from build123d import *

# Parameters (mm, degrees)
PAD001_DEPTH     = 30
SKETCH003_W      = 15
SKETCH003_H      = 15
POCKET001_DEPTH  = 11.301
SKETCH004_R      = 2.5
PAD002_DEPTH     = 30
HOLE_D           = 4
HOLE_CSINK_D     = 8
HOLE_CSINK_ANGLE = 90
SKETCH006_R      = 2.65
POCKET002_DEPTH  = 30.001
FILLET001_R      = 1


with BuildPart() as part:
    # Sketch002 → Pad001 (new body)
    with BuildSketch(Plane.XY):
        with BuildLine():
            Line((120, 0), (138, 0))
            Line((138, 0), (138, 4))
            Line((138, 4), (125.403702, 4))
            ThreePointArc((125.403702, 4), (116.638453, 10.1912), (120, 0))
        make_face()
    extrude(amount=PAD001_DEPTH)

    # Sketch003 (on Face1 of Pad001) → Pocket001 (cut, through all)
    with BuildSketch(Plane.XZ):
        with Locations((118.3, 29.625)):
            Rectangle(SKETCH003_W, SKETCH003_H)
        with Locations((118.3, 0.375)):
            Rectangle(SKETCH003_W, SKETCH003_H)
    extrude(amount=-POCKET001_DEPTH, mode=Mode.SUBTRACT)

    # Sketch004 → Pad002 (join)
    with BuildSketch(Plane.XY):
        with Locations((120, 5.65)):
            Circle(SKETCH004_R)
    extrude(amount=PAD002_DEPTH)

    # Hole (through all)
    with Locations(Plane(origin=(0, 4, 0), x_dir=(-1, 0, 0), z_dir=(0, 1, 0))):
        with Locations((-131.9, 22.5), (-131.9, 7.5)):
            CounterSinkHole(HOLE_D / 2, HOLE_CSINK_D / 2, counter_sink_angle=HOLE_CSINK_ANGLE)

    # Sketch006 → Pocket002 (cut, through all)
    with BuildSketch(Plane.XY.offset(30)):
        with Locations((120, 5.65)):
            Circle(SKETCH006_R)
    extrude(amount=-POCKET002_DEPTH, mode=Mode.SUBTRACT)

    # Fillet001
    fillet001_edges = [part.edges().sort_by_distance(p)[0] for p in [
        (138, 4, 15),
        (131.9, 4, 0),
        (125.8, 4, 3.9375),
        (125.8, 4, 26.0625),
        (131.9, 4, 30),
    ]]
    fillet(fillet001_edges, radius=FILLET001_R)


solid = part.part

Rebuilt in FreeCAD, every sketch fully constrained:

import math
import FreeCAD as App
import Part
import Sketcher
Q = App.Units.Quantity


def edges_at(feature, points):
    """Names of the edges that pass closest to the given points."""
    edges = feature.Shape.Edges
    near = lambda p: min(range(len(edges)), key=lambda i: edges[i].distToShape(Part.Vertex(*p))[0])
    return sorted({f"Edge{near(p) + 1}" for p in points})

doc = App.newDocument("Part")
body = doc.addObject("PartDesign::Body", "Body")

# Sketch on XY plane
sketch1 = doc.addObject("Sketcher::SketchObject", "Sketch")
body.addObject(sketch1)
sketch1.AttachmentSupport = (doc.XY_Plane, [""])
sketch1.MapMode = "FlatFace"
sketch1.addGeometry(Part.LineSegment(App.Vector(120, 0, 0), App.Vector(138, 0, 0)), False)
sketch1.addGeometry(Part.LineSegment(App.Vector(138, 0, 0), App.Vector(138, 4, 0)), False)
sketch1.addGeometry(Part.LineSegment(App.Vector(138, 4, 0), App.Vector(125.4, 4, 0)), False)
sketch1.addGeometry(Part.ArcOfCircle(Part.Circle(App.Vector(120, 5.6, 0), App.Vector(0, 0, 1), 5.6), math.radians(-17), math.radians(270)), False)
sketch1.addConstraint(Sketcher.Constraint("Coincident", 0, 2, 1, 1))
sketch1.addConstraint(Sketcher.Constraint("Coincident", 1, 2, 2, 1))
sketch1.addConstraint(Sketcher.Constraint("Coincident", 2, 2, 3, 1))
sketch1.addConstraint(Sketcher.Constraint("Tangent", 3, 2, 0, 1))
sketch1.addConstraint(Sketcher.Constraint("Horizontal", 0))
sketch1.addConstraint(Sketcher.Constraint("Vertical", 1))
sketch1.addConstraint(Sketcher.Constraint("Horizontal", 2))
sketch1.addConstraint(Sketcher.Constraint("PointOnObject", 0, 2, -1))
sketch1.addConstraint(Sketcher.Constraint("DistanceX", 0, 1, 0, 2, Q("18 mm")))
sketch1.addConstraint(Sketcher.Constraint("DistanceY", 1, 1, 1, 2, Q("4 mm")))
sketch1.addConstraint(Sketcher.Constraint("Radius", 3, Q("5.65 mm")))
sketch1.addConstraint(Sketcher.Constraint("DistanceX", -1, 1, 3, 3, Q("120 mm")))
pad1 = doc.addObject("PartDesign::Pad", "Pad")
body.addObject(pad1)
pad1.Profile = sketch1
pad1.Length = 30

# Sketch on XZ plane
sketch2 = doc.addObject("Sketcher::SketchObject", "Sketch001")
body.addObject(sketch2)
sketch2.AttachmentSupport = (doc.XZ_Plane, [""])
sketch2.MapMode = "FlatFace"
sketch2.addGeometry(Part.LineSegment(App.Vector(111, 37, 0), App.Vector(111, 22, 0)), False)
sketch2.addGeometry(Part.LineSegment(App.Vector(111, 22, 0), App.Vector(126, 22, 0)), False)
sketch2.addGeometry(Part.LineSegment(App.Vector(126, 22, 0), App.Vector(126, 37, 0)), False)
sketch2.addGeometry(Part.LineSegment(App.Vector(126, 37, 0), App.Vector(111, 37, 0)), False)
sketch2.addGeometry(Part.LineSegment(App.Vector(111, 8, 0), App.Vector(111, -7, 0)), False)
sketch2.addGeometry(Part.LineSegment(App.Vector(111, -7, 0), App.Vector(126, -7, 0)), False)
sketch2.addGeometry(Part.LineSegment(App.Vector(126, -7, 0), App.Vector(126, 8, 0)), False)
sketch2.addGeometry(Part.LineSegment(App.Vector(126, 8, 0), App.Vector(111, 8, 0)), False)
sketch2.addConstraint(Sketcher.Constraint("Coincident", 0, 2, 1, 1))
sketch2.addConstraint(Sketcher.Constraint("Coincident", 1, 2, 2, 1))
sketch2.addConstraint(Sketcher.Constraint("Coincident", 2, 2, 3, 1))
sketch2.addConstraint(Sketcher.Constraint("Coincident", 3, 2, 0, 1))
sketch2.addConstraint(Sketcher.Constraint("Coincident", 4, 2, 5, 1))
sketch2.addConstraint(Sketcher.Constraint("Coincident", 5, 2, 6, 1))
sketch2.addConstraint(Sketcher.Constraint("Coincident", 6, 2, 7, 1))
sketch2.addConstraint(Sketcher.Constraint("Coincident", 7, 2, 4, 1))
sketch2.addConstraint(Sketcher.Constraint("Vertical", 0))
sketch2.addConstraint(Sketcher.Constraint("Horizontal", 1))
sketch2.addConstraint(Sketcher.Constraint("Vertical", 2))
sketch2.addConstraint(Sketcher.Constraint("Horizontal", 3))
sketch2.addConstraint(Sketcher.Constraint("Vertical", 4))
sketch2.addConstraint(Sketcher.Constraint("Horizontal", 5))
sketch2.addConstraint(Sketcher.Constraint("Vertical", 6))
sketch2.addConstraint(Sketcher.Constraint("Horizontal", 7))
sketch2.addConstraint(Sketcher.Constraint("Vertical", 3, 2, 4, 2))
sketch2.addConstraint(Sketcher.Constraint("Vertical", 2, 2, 5, 2))
sketch2.addConstraint(Sketcher.Constraint("Equal", 7, 0))
sketch2.addConstraint(Sketcher.Constraint("Equal", 2, 4))
sketch2.addConstraint(Sketcher.Constraint("DistanceX", 1, 1, 1, 2, Q("15 mm")))
sketch2.addConstraint(Sketcher.Constraint("DistanceX", -1, 1, 0, 2, Q("110.8 mm")))
sketch2.addConstraint(Sketcher.Constraint("DistanceY", 4, 2, 0, 2, Q("29.25 mm")))
sketch2.addConstraint(Sketcher.Constraint("DistanceY", -1, 1, 0, 2, Q("22.125 mm")))
pocket1 = doc.addObject("PartDesign::Pocket", "Pocket")
body.addObject(pocket1)
pocket1.Profile = sketch2
pocket1.Type = "ThroughAll"

# Sketch on XY plane
sketch3 = doc.addObject("Sketcher::SketchObject", "Sketch002")
body.addObject(sketch3)
sketch3.AttachmentSupport = (doc.XY_Plane, [""])
sketch3.MapMode = "FlatFace"
sketch3.addGeometry(Part.Circle(App.Vector(120, 5.7, 0), App.Vector(0, 0, 1), 2.5), False)
sketch3.addConstraint(Sketcher.Constraint("Diameter", 0, Q("5 mm")))
sketch3.addConstraint(Sketcher.Constraint("DistanceX", -1, 1, 0, 3, Q("120 mm")))
sketch3.addConstraint(Sketcher.Constraint("DistanceY", -1, 1, 0, 3, Q("5.65 mm")))
pad2 = doc.addObject("PartDesign::Pad", "Pad001")
body.addObject(pad2)
pad2.Profile = sketch3
pad2.Length = 30

# Sketch on XZ plane
sketch4 = doc.addObject("Sketcher::SketchObject", "Sketch003")
body.addObject(sketch4)
sketch4.AttachmentSupport = (doc.XZ_Plane, [""])
sketch4.MapMode = "FlatFace"
sketch4.AttachmentOffset = App.Placement(App.Vector(0, 0, -4), App.Rotation())
sketch4.addGeometry(Part.Circle(App.Vector(131.9, 22.5, 0), App.Vector(0, 0, 1), 2), False)
sketch4.addGeometry(Part.Circle(App.Vector(131.9, 7.5, 0), App.Vector(0, 0, 1), 2), False)
sketch4.addConstraint(Sketcher.Constraint("Equal", 0, 1))
sketch4.addConstraint(Sketcher.Constraint("Vertical", 0, 3, 1, 3))
sketch4.addConstraint(Sketcher.Constraint("Diameter", 0, Q("4 mm")))
sketch4.addConstraint(Sketcher.Constraint("DistanceY", 1, 3, 0, 3, Q("15 mm")))
sketch4.addConstraint(Sketcher.Constraint("DistanceX", -1, 1, 0, 3, Q("131.9 mm")))
sketch4.addConstraint(Sketcher.Constraint("DistanceY", -1, 1, 0, 3, Q("22.5 mm")))
doc.recompute()
hole = doc.addObject("PartDesign::Hole", "Hole")
body.addObject(hole)
hole.Profile = sketch4
hole.ThreadType = "None"
hole.Diameter = 4
hole.DepthType = "ThroughAll"
hole.HoleCutType = "Countersink"
hole.HoleCutDiameter = 8
hole.HoleCutCountersinkAngle = 90
hole.Reversed = True

# Sketch on XY plane
sketch5 = doc.addObject("Sketcher::SketchObject", "Sketch004")
body.addObject(sketch5)
sketch5.AttachmentSupport = (doc.XY_Plane, [""])
sketch5.MapMode = "FlatFace"
sketch5.AttachmentOffset = App.Placement(App.Vector(0, 0, 30), App.Rotation())
sketch5.addGeometry(Part.Circle(App.Vector(120, 5.7, 0), App.Vector(0, 0, 1), 2.6), False)
sketch5.addConstraint(Sketcher.Constraint("Diameter", 0, Q("5.3 mm")))
sketch5.addConstraint(Sketcher.Constraint("DistanceX", -1, 1, 0, 3, Q("120 mm")))
sketch5.addConstraint(Sketcher.Constraint("DistanceY", -1, 1, 0, 3, Q("5.65 mm")))
pocket2 = doc.addObject("PartDesign::Pocket", "Pocket001")
body.addObject(pocket2)
pocket2.Profile = sketch5
pocket2.Type = "ThroughAll"
doc.recompute()

fillet = doc.addObject("PartDesign::Fillet", "Fillet")
body.addObject(fillet)
fillet.Base = (pocket2, edges_at(pocket2, [
    (138, 4, 15),
    (131.9, 4, 0),
    (125.8, 4, 3.938),
    (125.8, 4, 26.062),
    (131.9, 4, 30),
]))
fillet.Radius = 1

doc.recompute()
